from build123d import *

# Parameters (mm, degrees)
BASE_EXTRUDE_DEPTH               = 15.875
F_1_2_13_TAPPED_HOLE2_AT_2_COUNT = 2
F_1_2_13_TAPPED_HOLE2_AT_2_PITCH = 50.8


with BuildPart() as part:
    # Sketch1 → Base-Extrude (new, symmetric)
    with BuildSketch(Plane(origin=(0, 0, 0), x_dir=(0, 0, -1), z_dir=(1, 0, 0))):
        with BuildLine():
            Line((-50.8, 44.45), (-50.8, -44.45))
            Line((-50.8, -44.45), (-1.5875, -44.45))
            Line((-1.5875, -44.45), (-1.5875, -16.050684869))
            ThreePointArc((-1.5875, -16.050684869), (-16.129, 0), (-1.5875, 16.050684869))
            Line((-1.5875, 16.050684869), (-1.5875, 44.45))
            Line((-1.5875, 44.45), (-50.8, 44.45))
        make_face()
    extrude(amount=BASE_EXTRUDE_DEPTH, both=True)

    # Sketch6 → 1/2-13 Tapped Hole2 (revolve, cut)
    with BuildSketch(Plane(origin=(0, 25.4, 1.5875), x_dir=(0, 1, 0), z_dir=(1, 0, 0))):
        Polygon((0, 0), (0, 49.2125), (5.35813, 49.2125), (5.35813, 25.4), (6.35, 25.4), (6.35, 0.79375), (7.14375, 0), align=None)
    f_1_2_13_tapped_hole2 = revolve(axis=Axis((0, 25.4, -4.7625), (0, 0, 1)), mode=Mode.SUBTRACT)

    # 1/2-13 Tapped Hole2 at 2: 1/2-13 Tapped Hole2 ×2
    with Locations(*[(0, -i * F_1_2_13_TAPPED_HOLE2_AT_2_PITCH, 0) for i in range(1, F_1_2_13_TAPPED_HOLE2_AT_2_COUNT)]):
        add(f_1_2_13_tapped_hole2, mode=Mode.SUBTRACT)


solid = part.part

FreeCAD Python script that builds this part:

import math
import FreeCAD as App
import Part
import Sketcher

V = App.Vector
Q = App.Units.Quantity


def add_polygon(sketch, points):
    """Adds a closed chain of lines whose ends are joined by coincident constraints."""
    first, n = sketch.GeometryCount, len(points)
    for a, b in zip(points, points[1:] + points[:1]):
        sketch.addGeometry(Part.LineSegment(App.Vector(*a, 0), App.Vector(*b, 0)), False)
    for i in range(n):
        sketch.addConstraint(Sketcher.Constraint("Coincident", first + i, 2, first + (i + 1) % n, 1))

doc = App.newDocument("Part")
body = doc.addObject("PartDesign::Body", "Body")

sketch1 = body.newObject("Sketcher::SketchObject", "Sketch")
sketch1.AttachmentSupport = (doc.getObject("YZ_Plane"), [""])
sketch1.MapMode = "FlatFace"
sketch1.addGeometry(Part.LineSegment(V(44, 51, 0), V(-44, 51, 0)), False)
sketch1.addGeometry(Part.LineSegment(V(-44, 51, 0), V(-44, 2, 0)), False)
sketch1.addGeometry(Part.LineSegment(V(-44, 2, 0), V(-16, 2, 0)), False)
sketch1.addGeometry(Part.ArcOfCircle(Part.Circle(V(0, 0, 0), V(0, 0, 1), 16), math.radians(6), math.radians(174)), False)
sketch1.addGeometry(Part.LineSegment(V(16, 2, 0), V(44, 2, 0)), False)
sketch1.addGeometry(Part.LineSegment(V(44, 2, 0), V(44, 51, 0)), False)
sketch1.addConstraint(Sketcher.Constraint("Coincident", 0, 2, 1, 1))
sketch1.addConstraint(Sketcher.Constraint("Coincident", 1, 2, 2, 1))
sketch1.addConstraint(Sketcher.Constraint("Coincident", 2, 2, 3, 2))
sketch1.addConstraint(Sketcher.Constraint("Coincident", 3, 1, 4, 1))
sketch1.addConstraint(Sketcher.Constraint("Coincident", 4, 2, 5, 1))
sketch1.addConstraint(Sketcher.Constraint("Coincident", 5, 2, 0, 1))
sketch1.addConstraint(Sketcher.Constraint("Horizontal", 0))
sketch1.addConstraint(Sketcher.Constraint("Vertical", 1))
sketch1.addConstraint(Sketcher.Constraint("Horizontal", 2))
sketch1.addConstraint(Sketcher.Constraint("Horizontal", 4))
sketch1.addConstraint(Sketcher.Constraint("Vertical", 5))
sketch1.addConstraint(Sketcher.Constraint("Coincident", 3, 3, -1, 1))
sketch1.addConstraint(Sketcher.Constraint("Symmetric", 1, 2, 4, 2, -2))
sketch1.addConstraint(Sketcher.Constraint("DistanceX", 0, 2, 0, 1, Q("3.5 in")))
sketch1.addConstraint(Sketcher.Constraint("DistanceY", -1, 1, 0, 2, Q("2 in")))
sketch1.addConstraint(Sketcher.Constraint("Radius", 3, Q("0.635 in")))
sketch1.addConstraint(Sketcher.Constraint("DistanceY", 1, 2, 1, 1, Q("1.9375 in")))
pad1 = body.newObject("PartDesign::Pad", "Pad")
pad1.Profile = sketch1
pad1.Length = Q("1.25 in")
pad1.Midplane = True

sketch2 = body.newObject("Sketcher::SketchObject", "Sketch001")
sketch2.AttachmentSupport = (doc.getObject("YZ_Plane"), [""])
sketch2.MapMode = "FlatFace"
add_polygon(sketch2, [(25.4, 50.8), (25.4, 1.6), (32.5, 1.6), (31.8, 2.4), (31.8, 27), (30.8, 27), (30.8, 50.8)])
sketch2.addGeometry(Part.LineSegment(V(25.4, 1.6, 0), V(25.4, 50.8, 0)), True)
sketch2.addConstraint(Sketcher.Constraint("Vertical", 0))
sketch2.addConstraint(Sketcher.Constraint("Horizontal", 1))
sketch2.addConstraint(Sketcher.Constraint("Vertical", 3))
sketch2.addConstraint(Sketcher.Constraint("Horizontal", 4))
sketch2.addConstraint(Sketcher.Constraint("Vertical", 5))
sketch2.addConstraint(Sketcher.Constraint("Horizontal", 6))
sketch2.addConstraint(Sketcher.Constraint("Vertical", 7))
sketch2.addConstraint(Sketcher.Constraint("Coincident", 7, 1, 0, 2))
sketch2.addConstraint(Sketcher.Constraint("Horizontal", 5, 2, 7, 2))
sketch2.addConstraint(Sketcher.Constraint("DistanceX", -1, 1, 0, 2, Q("1 in")))
sketch2.addConstraint(Sketcher.Constraint("DistanceY", -1, 1, 5, 2, Q("2 in")))
sketch2.addConstraint(Sketcher.Constraint("Angle", 2, Q("135 deg")))
sketch2.addConstraint(Sketcher.Constraint("DistanceY", 1, 2, 3, 2, Q("1 in")))
sketch2.addConstraint(Sketcher.Constraint("DistanceX", 1, 1, 1, 2, Q("0.28125 in")))
sketch2.addConstraint(Sketcher.Constraint("DistanceY", 0, 2, 0, 1, Q("1.9375 in")))
sketch2.addConstraint(Sketcher.Constraint("DistanceY", 3, 1, 3, 2, Q("0.96875 in")))
sketch2.addConstraint(Sketcher.Constraint("DistanceX", 4, 2, 1, 2, Q("0.0703 in")))
groove = body.newObject("PartDesign::Groove", "Groove")
groove.Profile = sketch2
groove.ReferenceAxis = (sketch2, ["Axis0"])
groove.Angle = 360
doc.recompute()

linearpattern = body.newObject("PartDesign::LinearPattern", "LinearPattern")
linearpattern.Originals = [groove]
linearpattern.Direction = (doc.getObject("Y_Axis"), [""])
linearpattern.Mode = "offset"
linearpattern.Offset = Q("2 in")
linearpattern.Occurrences = 2
linearpattern.Reversed = True
body.Tip = linearpattern

doc.recompute()
